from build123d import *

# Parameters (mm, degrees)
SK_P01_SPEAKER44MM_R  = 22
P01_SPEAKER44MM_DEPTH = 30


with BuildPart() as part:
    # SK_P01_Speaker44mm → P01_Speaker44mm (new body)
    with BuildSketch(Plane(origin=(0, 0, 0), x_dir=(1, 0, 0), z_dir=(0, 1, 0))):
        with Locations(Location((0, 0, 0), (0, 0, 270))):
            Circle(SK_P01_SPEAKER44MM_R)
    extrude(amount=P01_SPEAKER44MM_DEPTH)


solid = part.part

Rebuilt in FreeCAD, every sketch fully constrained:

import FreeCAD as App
import Part
import Sketcher

V = App.Vector
Q = App.Units.Quantity

doc = App.newDocument("Part")
body = doc.addObject("PartDesign::Body", "Body")

# Sketch on XZ plane
sketch1 = body.newObject("Sketcher::SketchObject", "Sketch")
sketch1.AttachmentSupport = (doc.getObject("XZ_Plane"), [""])
sketch1.MapMode = "FlatFace"
sketch1.addGeometry(Part.Circle(V(0, 0, 0), V(0, 0, 1), 22), False)
sketch1.addConstraint([
    Sketcher.Constraint("Coincident", 0, 3, -1, 1),
    Sketcher.Constraint("Diameter", 0, Q("44 mm")),
])
pad1 = body.newObject("PartDesign::Pad", "Pad")
pad1.Profile = sketch1
pad1.Length = 30
pad1.Reversed = True

doc.recompute()
